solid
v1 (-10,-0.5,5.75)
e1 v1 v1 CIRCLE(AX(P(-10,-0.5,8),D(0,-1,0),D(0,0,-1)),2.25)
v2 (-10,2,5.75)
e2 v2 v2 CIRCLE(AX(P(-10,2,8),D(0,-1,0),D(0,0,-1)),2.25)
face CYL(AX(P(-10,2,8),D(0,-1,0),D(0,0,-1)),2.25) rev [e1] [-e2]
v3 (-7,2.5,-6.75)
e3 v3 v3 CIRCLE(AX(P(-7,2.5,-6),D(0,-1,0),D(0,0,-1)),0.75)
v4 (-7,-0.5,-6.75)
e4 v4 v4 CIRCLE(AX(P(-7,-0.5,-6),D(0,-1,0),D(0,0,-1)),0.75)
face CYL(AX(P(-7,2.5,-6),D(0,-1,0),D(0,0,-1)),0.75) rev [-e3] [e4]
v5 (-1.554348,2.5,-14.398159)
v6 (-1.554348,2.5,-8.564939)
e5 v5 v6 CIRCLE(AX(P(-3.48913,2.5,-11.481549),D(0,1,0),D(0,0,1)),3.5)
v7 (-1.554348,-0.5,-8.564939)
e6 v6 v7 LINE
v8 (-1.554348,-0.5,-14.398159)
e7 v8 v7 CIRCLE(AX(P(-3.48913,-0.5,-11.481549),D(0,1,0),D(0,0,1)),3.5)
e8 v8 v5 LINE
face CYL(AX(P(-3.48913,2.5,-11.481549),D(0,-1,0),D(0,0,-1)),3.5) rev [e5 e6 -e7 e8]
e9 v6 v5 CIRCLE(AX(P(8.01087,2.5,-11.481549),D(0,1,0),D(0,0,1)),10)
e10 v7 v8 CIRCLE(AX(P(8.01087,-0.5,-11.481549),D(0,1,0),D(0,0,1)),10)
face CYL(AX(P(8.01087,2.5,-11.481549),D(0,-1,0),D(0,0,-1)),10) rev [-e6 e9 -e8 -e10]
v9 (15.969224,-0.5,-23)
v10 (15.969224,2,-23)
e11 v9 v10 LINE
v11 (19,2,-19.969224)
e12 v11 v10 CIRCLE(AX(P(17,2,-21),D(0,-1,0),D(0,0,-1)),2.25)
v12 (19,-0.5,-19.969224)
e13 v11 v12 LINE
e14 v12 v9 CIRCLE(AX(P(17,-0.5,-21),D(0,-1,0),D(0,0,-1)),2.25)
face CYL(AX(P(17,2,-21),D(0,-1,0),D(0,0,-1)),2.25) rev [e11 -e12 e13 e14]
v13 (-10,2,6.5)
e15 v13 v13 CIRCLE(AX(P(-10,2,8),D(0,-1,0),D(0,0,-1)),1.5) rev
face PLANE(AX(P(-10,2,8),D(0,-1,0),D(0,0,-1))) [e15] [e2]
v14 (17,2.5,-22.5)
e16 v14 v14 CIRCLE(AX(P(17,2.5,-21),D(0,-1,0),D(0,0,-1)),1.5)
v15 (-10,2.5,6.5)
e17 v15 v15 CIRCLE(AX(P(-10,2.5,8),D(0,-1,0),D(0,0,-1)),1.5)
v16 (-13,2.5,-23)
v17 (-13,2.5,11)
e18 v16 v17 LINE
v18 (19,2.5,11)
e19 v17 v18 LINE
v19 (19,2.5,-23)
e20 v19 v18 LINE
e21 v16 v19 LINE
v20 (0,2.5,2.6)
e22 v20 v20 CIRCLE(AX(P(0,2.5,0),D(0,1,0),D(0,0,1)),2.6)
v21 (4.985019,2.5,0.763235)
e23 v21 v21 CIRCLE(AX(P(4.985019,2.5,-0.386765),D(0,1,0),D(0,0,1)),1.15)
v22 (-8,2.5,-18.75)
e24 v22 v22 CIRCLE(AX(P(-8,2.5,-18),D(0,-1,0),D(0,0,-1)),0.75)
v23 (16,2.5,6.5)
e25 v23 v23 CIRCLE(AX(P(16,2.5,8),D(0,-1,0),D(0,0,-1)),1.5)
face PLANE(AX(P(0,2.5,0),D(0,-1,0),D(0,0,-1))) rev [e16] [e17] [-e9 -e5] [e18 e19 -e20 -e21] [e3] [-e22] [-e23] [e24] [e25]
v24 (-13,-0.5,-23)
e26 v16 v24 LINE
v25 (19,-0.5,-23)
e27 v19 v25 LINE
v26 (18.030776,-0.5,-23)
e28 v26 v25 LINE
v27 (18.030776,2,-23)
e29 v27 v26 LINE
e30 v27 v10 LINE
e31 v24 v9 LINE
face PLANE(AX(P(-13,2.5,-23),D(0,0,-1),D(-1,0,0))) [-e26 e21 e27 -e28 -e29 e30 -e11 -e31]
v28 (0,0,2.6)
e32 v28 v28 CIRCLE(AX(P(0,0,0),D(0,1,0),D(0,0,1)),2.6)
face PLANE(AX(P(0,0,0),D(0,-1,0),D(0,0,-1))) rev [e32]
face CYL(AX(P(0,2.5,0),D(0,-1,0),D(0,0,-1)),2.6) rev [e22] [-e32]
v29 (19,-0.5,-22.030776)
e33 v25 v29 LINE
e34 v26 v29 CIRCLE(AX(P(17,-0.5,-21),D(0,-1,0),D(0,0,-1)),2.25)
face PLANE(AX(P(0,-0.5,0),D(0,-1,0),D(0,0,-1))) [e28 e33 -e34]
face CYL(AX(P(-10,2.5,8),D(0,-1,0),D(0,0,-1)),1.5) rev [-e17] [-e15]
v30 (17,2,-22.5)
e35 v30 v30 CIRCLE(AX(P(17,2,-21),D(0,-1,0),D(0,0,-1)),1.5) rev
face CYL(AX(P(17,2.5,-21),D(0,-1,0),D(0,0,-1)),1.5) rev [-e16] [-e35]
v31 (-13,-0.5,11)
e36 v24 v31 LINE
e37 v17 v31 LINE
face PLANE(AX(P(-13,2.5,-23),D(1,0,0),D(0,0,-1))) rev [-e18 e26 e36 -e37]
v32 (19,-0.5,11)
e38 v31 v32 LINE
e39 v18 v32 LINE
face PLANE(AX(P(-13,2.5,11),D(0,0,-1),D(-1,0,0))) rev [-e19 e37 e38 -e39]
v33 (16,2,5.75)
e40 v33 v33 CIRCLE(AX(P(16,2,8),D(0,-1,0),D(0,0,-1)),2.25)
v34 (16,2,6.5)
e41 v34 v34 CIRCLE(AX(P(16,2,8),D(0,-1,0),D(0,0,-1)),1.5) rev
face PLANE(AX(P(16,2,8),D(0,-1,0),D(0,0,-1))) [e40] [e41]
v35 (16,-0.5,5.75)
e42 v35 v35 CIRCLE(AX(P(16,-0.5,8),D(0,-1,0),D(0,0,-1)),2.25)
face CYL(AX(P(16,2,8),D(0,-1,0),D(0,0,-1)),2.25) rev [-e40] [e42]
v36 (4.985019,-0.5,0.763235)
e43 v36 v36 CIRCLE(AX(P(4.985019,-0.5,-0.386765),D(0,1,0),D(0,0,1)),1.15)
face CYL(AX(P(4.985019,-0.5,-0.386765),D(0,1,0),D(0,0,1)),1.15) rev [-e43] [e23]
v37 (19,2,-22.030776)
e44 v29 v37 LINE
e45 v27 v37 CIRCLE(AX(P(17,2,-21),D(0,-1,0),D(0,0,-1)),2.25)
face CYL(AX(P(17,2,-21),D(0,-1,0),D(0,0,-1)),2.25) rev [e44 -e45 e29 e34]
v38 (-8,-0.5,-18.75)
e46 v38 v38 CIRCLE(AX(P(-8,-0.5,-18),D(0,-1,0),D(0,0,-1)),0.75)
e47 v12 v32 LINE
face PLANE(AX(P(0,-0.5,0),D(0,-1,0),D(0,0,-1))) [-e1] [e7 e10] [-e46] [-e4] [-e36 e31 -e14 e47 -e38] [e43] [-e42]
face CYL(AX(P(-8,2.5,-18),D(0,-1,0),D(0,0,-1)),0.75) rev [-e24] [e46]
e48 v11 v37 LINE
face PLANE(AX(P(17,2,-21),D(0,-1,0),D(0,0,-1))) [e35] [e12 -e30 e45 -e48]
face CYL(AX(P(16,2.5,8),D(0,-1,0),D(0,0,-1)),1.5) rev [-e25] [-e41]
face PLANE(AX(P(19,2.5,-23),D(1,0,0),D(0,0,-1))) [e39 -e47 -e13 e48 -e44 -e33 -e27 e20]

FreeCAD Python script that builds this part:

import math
import FreeCAD as App
import Part
import Sketcher

V = App.Vector
Q = App.Units.Quantity

doc = App.newDocument("Part")
body = doc.addObject("PartDesign::Body", "Body")

# Sketch on XZ plane
sketch1 = doc.addObject("Sketcher::SketchObject", "Sketch")
body.addObject(sketch1)
sketch1.AttachmentSupport = (doc.XZ_Plane, [""])
sketch1.MapMode = "FlatFace"
sketch1.addGeometry([
    Part.LineSegment(V(-13, -23, 0), V(-13, 11, 0)),  # 0
    Part.LineSegment(V(-13, 11, 0), V(19, 11, 0)),  # 1
    Part.LineSegment(V(19, 11, 0), V(19, -23, 0)),  # 2
    Part.LineSegment(V(19, -23, 0), V(-13, -23, 0)),  # 3
    Part.Circle(V(0, 0, 0), V(0, 0, 1), 2.6),  # 4
    Part.ArcOfCircle(Part.Circle(V(8, -11.5, 0), V(0, 0, 1), 10), math.radians(-163), math.radians(163)),  # 5
    Part.ArcOfCircle(Part.Circle(V(-3.5, -11.5, 0), V(0, 0, 1), 3.5), math.radians(56), math.radians(304)),  # 6
], False)
sketch1.addConstraint([
    Sketcher.Constraint("Coincident", 0, 2, 1, 1),
    Sketcher.Constraint("Coincident", 1, 2, 2, 1),
    Sketcher.Constraint("Coincident", 2, 2, 3, 1),
    Sketcher.Constraint("Coincident", 3, 2, 0, 1),
    Sketcher.Constraint("Coincident", 5, 1, 6, 2),
    Sketcher.Constraint("Coincident", 6, 1, 5, 2),
    Sketcher.Constraint("Vertical", 0),
    Sketcher.Constraint("Horizontal", 1),
    Sketcher.Constraint("Vertical", 2),
    Sketcher.Constraint("Horizontal", 3),
    Sketcher.Constraint("Coincident", 4, 3, -1, 1),
    Sketcher.Constraint("Horizontal", 5, 3, 6, 3),
    Sketcher.Constraint("Radius", 5, Q("10 mm")),
    Sketcher.Constraint("Diameter", 4, Q("5.2 mm")),
    Sketcher.Constraint("Radius", 6, Q("3.5 mm")),
    Sketcher.Constraint("DistanceX", 1, 1, 1, 2, Q("32 mm")),
    Sketcher.Constraint("DistanceY", 0, 1, 0, 2, Q("34 mm")),
    Sketcher.Constraint("DistanceX", 0, 2, -1, 1, Q("13 mm")),
    Sketcher.Constraint("DistanceY", -1, 1, 0, 2, Q("11 mm")),
    Sketcher.Constraint("DistanceX", 6, 3, 5, 3, Q("11.5 mm")),
    Sketcher.Constraint("DistanceX", -1, 1, 5, 3, Q("8.01087 mm")),
    Sketcher.Constraint("DistanceY", 5, 3, -1, 1, Q("11.481549 mm")),
])
pad1 = doc.addObject("PartDesign::Pad", "Pad")
body.addObject(pad1)
pad1.Profile = sketch1
pad1.Length = 2.5
pad1.Reversed = True

# Sketch on XZ plane
sketch2 = doc.addObject("Sketcher::SketchObject", "Sketch001")
body.addObject(sketch2)
sketch2.AttachmentSupport = (doc.XZ_Plane, [""])
sketch2.MapMode = "FlatFace"
sketch2.AttachmentOffset = App.Placement(V(0, 0, 0.5), App.Rotation())
sketch2.addGeometry([
    Part.LineSegment(V(-13, -23, 0), V(-13, 11, 0)),  # 0
    Part.LineSegment(V(-13, 11, 0), V(19, 11, 0)),  # 1
    Part.LineSegment(V(19, 11, 0), V(19, -23, 0)),  # 2
    Part.LineSegment(V(19, -23, 0), V(-13, -23, 0)),  # 3
    Part.ArcOfCircle(Part.Circle(V(8, -11.5, 0), V(0, 0, 1), 10), math.radians(-163), math.radians(163)),  # 4
    Part.ArcOfCircle(Part.Circle(V(-3.5, -11.5, 0), V(0, 0, 1), 3.5), math.radians(56), math.radians(304)),  # 5
], False)
sketch2.addConstraint([
    Sketcher.Constraint("Coincident", 0, 2, 1, 1),
    Sketcher.Constraint("Coincident", 1, 2, 2, 1),
    Sketcher.Constraint("Coincident", 2, 2, 3, 1),
    Sketcher.Constraint("Coincident", 3, 2, 0, 1),
    Sketcher.Constraint("Coincident", 4, 1, 5, 2),
    Sketcher.Constraint("Coincident", 5, 1, 4, 2),
    Sketcher.Constraint("Vertical", 0),
    Sketcher.Constraint("Horizontal", 1),
    Sketcher.Constraint("Vertical", 2),
    Sketcher.Constraint("Horizontal", 3),
    Sketcher.Constraint("Horizontal", 4, 3, 5, 3),
    Sketcher.Constraint("Radius", 4, Q("10 mm")),
    Sketcher.Constraint("Radius", 5, Q("3.5 mm")),
    Sketcher.Constraint("DistanceX", 1, 1, 1, 2, Q("32 mm")),
    Sketcher.Constraint("DistanceY", 0, 1, 0, 2, Q("34 mm")),
    Sketcher.Constraint("DistanceX", 0, 2, -1, 1, Q("13 mm")),
    Sketcher.Constraint("DistanceY", -1, 1, 0, 2, Q("11 mm")),
    Sketcher.Constraint("DistanceX", 5, 3, 4, 3, Q("11.5 mm")),
    Sketcher.Constraint("DistanceX", -1, 1, 4, 3, Q("8.01087 mm")),
    Sketcher.Constraint("DistanceY", 4, 3, -1, 1, Q("11.481549 mm")),
])
pad2 = doc.addObject("PartDesign::Pad", "Pad001")
body.addObject(pad2)
pad2.Profile = sketch2
pad2.Length = 0.5
pad2.Reversed = True

# Sketch on XZ plane
sketch3 = doc.addObject("Sketcher::SketchObject", "Sketch002")
body.addObject(sketch3)
sketch3.AttachmentSupport = (doc.XZ_Plane, [""])
sketch3.MapMode = "FlatFace"
sketch3.AttachmentOffset = App.Placement(V(0, 0, 0.5), App.Rotation())
sketch3.addGeometry([
    Part.Circle(V(17, -21, 0), V(0, 0, 1), 1.5),
    Part.Circle(V(-10, 8, 0), V(0, 0, 1), 1.5),
    Part.Circle(V(16, 8, 0), V(0, 0, 1), 1.5),
], False)
sketch3.addConstraint([
    Sketcher.Constraint("Equal", 0, 1),
    Sketcher.Constraint("Equal", 1, 2),
    Sketcher.Constraint("Horizontal", 1, 3, 2, 3),
    Sketcher.Constraint("Diameter", 0, Q("3 mm")),
    Sketcher.Constraint("DistanceX", -1, 1, 0, 3, Q("17 mm")),
    Sketcher.Constraint("DistanceY", 0, 3, -1, 1, Q("21 mm")),
    Sketcher.Constraint("DistanceX", 1, 3, -1, 1, Q("10 mm")),
    Sketcher.Constraint("DistanceY", -1, 1, 1, 3, Q("8 mm")),
    Sketcher.Constraint("DistanceX", -1, 1, 2, 3, Q("16 mm")),
])
pocket1 = doc.addObject("PartDesign::Pocket", "Pocket")
body.addObject(pocket1)
pocket1.Profile = sketch3
pocket1.Type = "ThroughAll"

# Sketch on XZ plane
sketch4 = doc.addObject("Sketcher::SketchObject", "Sketch003")
body.addObject(sketch4)
sketch4.AttachmentSupport = (doc.XZ_Plane, [""])
sketch4.MapMode = "FlatFace"
sketch4.AttachmentOffset = App.Placement(V(0, 0, 0.5), App.Rotation())
sketch4.addGeometry([
    Part.Circle(V(17, -21, 0), V(0, 0, 1), 2.2),
    Part.Circle(V(-10, 8, 0), V(0, 0, 1), 2.2),
    Part.Circle(V(16, 8, 0), V(0, 0, 1), 2.2),
], False)
sketch4.addConstraint([
    Sketcher.Constraint("Equal", 0, 1),
    Sketcher.Constraint("Equal", 1, 2),
    Sketcher.Constraint("Horizontal", 1, 3, 2, 3),
    Sketcher.Constraint("Diameter", 0, Q("4.5 mm")),
    Sketcher.Constraint("DistanceX", -1, 1, 0, 3, Q("17 mm")),
    Sketcher.Constraint("DistanceY", 0, 3, -1, 1, Q("21 mm")),
    Sketcher.Constraint("DistanceX", 1, 3, -1, 1, Q("10 mm")),
    Sketcher.Constraint("DistanceY", -1, 1, 1, 3, Q("8 mm")),
    Sketcher.Constraint("DistanceX", -1, 1, 2, 3, Q("16 mm")),
])
pocket2 = doc.addObject("PartDesign::Pocket", "Pocket001")
body.addObject(pocket2)
pocket2.Profile = sketch4
pocket2.Length = 2.5

# Sketch on XZ plane
sketch5 = doc.addObject("Sketcher::SketchObject", "Sketch004")
body.addObject(sketch5)
sketch5.AttachmentSupport = (doc.XZ_Plane, [""])
sketch5.MapMode = "FlatFace"
sketch5.AttachmentOffset = App.Placement(V(0, 0, 0.5), App.Rotation())
sketch5.addGeometry([
    Part.Circle(V(-7, -6, 0), V(0, 0, 1), 0.8),
    Part.Circle(V(-8, -18, 0), V(0, 0, 1), 0.8),
], False)
sketch5.addConstraint([
    Sketcher.Constraint("Equal", 0, 1),
    Sketcher.Constraint("Diameter", 0, Q("1.5 mm")),
    Sketcher.Constraint("DistanceX", 0, 3, -1, 1, Q("7 mm")),
    Sketcher.Constraint("DistanceY", 0, 3, -1, 1, Q("6 mm")),
    Sketcher.Constraint("DistanceX", 1, 3, -1, 1, Q("8 mm")),
    Sketcher.Constraint("DistanceY", 1, 3, -1, 1, Q("18 mm")),
])
pocket3 = doc.addObject("PartDesign::Pocket", "Pocket002")
body.addObject(pocket3)
pocket3.Profile = sketch5
pocket3.Type = "ThroughAll"

# Sketch on XZ plane
sketch6 = doc.addObject("Sketcher::SketchObject", "Sketch005")
body.addObject(sketch6)
sketch6.AttachmentSupport = (doc.XZ_Plane, [""])
sketch6.MapMode = "FlatFace"
sketch6.addGeometry(Part.Circle(V(5, -0.4, 0), V(0, 0, 1), 1.1), False)
sketch6.addConstraint([
    Sketcher.Constraint("Diameter", 0, Q("2.3 mm")),
    Sketcher.Constraint("DistanceX", -1, 1, 0, 3, Q("4.985019 mm")),
    Sketcher.Constraint("DistanceY", 0, 3, -1, 1, Q("0.386765 mm")),
])
pocket4 = doc.addObject("PartDesign::Pocket", "Pocket003")
body.addObject(pocket4)
pocket4.Profile = sketch6
pocket4.Type = "ThroughAll"
pocket4.Midplane = True

doc.recompute()
